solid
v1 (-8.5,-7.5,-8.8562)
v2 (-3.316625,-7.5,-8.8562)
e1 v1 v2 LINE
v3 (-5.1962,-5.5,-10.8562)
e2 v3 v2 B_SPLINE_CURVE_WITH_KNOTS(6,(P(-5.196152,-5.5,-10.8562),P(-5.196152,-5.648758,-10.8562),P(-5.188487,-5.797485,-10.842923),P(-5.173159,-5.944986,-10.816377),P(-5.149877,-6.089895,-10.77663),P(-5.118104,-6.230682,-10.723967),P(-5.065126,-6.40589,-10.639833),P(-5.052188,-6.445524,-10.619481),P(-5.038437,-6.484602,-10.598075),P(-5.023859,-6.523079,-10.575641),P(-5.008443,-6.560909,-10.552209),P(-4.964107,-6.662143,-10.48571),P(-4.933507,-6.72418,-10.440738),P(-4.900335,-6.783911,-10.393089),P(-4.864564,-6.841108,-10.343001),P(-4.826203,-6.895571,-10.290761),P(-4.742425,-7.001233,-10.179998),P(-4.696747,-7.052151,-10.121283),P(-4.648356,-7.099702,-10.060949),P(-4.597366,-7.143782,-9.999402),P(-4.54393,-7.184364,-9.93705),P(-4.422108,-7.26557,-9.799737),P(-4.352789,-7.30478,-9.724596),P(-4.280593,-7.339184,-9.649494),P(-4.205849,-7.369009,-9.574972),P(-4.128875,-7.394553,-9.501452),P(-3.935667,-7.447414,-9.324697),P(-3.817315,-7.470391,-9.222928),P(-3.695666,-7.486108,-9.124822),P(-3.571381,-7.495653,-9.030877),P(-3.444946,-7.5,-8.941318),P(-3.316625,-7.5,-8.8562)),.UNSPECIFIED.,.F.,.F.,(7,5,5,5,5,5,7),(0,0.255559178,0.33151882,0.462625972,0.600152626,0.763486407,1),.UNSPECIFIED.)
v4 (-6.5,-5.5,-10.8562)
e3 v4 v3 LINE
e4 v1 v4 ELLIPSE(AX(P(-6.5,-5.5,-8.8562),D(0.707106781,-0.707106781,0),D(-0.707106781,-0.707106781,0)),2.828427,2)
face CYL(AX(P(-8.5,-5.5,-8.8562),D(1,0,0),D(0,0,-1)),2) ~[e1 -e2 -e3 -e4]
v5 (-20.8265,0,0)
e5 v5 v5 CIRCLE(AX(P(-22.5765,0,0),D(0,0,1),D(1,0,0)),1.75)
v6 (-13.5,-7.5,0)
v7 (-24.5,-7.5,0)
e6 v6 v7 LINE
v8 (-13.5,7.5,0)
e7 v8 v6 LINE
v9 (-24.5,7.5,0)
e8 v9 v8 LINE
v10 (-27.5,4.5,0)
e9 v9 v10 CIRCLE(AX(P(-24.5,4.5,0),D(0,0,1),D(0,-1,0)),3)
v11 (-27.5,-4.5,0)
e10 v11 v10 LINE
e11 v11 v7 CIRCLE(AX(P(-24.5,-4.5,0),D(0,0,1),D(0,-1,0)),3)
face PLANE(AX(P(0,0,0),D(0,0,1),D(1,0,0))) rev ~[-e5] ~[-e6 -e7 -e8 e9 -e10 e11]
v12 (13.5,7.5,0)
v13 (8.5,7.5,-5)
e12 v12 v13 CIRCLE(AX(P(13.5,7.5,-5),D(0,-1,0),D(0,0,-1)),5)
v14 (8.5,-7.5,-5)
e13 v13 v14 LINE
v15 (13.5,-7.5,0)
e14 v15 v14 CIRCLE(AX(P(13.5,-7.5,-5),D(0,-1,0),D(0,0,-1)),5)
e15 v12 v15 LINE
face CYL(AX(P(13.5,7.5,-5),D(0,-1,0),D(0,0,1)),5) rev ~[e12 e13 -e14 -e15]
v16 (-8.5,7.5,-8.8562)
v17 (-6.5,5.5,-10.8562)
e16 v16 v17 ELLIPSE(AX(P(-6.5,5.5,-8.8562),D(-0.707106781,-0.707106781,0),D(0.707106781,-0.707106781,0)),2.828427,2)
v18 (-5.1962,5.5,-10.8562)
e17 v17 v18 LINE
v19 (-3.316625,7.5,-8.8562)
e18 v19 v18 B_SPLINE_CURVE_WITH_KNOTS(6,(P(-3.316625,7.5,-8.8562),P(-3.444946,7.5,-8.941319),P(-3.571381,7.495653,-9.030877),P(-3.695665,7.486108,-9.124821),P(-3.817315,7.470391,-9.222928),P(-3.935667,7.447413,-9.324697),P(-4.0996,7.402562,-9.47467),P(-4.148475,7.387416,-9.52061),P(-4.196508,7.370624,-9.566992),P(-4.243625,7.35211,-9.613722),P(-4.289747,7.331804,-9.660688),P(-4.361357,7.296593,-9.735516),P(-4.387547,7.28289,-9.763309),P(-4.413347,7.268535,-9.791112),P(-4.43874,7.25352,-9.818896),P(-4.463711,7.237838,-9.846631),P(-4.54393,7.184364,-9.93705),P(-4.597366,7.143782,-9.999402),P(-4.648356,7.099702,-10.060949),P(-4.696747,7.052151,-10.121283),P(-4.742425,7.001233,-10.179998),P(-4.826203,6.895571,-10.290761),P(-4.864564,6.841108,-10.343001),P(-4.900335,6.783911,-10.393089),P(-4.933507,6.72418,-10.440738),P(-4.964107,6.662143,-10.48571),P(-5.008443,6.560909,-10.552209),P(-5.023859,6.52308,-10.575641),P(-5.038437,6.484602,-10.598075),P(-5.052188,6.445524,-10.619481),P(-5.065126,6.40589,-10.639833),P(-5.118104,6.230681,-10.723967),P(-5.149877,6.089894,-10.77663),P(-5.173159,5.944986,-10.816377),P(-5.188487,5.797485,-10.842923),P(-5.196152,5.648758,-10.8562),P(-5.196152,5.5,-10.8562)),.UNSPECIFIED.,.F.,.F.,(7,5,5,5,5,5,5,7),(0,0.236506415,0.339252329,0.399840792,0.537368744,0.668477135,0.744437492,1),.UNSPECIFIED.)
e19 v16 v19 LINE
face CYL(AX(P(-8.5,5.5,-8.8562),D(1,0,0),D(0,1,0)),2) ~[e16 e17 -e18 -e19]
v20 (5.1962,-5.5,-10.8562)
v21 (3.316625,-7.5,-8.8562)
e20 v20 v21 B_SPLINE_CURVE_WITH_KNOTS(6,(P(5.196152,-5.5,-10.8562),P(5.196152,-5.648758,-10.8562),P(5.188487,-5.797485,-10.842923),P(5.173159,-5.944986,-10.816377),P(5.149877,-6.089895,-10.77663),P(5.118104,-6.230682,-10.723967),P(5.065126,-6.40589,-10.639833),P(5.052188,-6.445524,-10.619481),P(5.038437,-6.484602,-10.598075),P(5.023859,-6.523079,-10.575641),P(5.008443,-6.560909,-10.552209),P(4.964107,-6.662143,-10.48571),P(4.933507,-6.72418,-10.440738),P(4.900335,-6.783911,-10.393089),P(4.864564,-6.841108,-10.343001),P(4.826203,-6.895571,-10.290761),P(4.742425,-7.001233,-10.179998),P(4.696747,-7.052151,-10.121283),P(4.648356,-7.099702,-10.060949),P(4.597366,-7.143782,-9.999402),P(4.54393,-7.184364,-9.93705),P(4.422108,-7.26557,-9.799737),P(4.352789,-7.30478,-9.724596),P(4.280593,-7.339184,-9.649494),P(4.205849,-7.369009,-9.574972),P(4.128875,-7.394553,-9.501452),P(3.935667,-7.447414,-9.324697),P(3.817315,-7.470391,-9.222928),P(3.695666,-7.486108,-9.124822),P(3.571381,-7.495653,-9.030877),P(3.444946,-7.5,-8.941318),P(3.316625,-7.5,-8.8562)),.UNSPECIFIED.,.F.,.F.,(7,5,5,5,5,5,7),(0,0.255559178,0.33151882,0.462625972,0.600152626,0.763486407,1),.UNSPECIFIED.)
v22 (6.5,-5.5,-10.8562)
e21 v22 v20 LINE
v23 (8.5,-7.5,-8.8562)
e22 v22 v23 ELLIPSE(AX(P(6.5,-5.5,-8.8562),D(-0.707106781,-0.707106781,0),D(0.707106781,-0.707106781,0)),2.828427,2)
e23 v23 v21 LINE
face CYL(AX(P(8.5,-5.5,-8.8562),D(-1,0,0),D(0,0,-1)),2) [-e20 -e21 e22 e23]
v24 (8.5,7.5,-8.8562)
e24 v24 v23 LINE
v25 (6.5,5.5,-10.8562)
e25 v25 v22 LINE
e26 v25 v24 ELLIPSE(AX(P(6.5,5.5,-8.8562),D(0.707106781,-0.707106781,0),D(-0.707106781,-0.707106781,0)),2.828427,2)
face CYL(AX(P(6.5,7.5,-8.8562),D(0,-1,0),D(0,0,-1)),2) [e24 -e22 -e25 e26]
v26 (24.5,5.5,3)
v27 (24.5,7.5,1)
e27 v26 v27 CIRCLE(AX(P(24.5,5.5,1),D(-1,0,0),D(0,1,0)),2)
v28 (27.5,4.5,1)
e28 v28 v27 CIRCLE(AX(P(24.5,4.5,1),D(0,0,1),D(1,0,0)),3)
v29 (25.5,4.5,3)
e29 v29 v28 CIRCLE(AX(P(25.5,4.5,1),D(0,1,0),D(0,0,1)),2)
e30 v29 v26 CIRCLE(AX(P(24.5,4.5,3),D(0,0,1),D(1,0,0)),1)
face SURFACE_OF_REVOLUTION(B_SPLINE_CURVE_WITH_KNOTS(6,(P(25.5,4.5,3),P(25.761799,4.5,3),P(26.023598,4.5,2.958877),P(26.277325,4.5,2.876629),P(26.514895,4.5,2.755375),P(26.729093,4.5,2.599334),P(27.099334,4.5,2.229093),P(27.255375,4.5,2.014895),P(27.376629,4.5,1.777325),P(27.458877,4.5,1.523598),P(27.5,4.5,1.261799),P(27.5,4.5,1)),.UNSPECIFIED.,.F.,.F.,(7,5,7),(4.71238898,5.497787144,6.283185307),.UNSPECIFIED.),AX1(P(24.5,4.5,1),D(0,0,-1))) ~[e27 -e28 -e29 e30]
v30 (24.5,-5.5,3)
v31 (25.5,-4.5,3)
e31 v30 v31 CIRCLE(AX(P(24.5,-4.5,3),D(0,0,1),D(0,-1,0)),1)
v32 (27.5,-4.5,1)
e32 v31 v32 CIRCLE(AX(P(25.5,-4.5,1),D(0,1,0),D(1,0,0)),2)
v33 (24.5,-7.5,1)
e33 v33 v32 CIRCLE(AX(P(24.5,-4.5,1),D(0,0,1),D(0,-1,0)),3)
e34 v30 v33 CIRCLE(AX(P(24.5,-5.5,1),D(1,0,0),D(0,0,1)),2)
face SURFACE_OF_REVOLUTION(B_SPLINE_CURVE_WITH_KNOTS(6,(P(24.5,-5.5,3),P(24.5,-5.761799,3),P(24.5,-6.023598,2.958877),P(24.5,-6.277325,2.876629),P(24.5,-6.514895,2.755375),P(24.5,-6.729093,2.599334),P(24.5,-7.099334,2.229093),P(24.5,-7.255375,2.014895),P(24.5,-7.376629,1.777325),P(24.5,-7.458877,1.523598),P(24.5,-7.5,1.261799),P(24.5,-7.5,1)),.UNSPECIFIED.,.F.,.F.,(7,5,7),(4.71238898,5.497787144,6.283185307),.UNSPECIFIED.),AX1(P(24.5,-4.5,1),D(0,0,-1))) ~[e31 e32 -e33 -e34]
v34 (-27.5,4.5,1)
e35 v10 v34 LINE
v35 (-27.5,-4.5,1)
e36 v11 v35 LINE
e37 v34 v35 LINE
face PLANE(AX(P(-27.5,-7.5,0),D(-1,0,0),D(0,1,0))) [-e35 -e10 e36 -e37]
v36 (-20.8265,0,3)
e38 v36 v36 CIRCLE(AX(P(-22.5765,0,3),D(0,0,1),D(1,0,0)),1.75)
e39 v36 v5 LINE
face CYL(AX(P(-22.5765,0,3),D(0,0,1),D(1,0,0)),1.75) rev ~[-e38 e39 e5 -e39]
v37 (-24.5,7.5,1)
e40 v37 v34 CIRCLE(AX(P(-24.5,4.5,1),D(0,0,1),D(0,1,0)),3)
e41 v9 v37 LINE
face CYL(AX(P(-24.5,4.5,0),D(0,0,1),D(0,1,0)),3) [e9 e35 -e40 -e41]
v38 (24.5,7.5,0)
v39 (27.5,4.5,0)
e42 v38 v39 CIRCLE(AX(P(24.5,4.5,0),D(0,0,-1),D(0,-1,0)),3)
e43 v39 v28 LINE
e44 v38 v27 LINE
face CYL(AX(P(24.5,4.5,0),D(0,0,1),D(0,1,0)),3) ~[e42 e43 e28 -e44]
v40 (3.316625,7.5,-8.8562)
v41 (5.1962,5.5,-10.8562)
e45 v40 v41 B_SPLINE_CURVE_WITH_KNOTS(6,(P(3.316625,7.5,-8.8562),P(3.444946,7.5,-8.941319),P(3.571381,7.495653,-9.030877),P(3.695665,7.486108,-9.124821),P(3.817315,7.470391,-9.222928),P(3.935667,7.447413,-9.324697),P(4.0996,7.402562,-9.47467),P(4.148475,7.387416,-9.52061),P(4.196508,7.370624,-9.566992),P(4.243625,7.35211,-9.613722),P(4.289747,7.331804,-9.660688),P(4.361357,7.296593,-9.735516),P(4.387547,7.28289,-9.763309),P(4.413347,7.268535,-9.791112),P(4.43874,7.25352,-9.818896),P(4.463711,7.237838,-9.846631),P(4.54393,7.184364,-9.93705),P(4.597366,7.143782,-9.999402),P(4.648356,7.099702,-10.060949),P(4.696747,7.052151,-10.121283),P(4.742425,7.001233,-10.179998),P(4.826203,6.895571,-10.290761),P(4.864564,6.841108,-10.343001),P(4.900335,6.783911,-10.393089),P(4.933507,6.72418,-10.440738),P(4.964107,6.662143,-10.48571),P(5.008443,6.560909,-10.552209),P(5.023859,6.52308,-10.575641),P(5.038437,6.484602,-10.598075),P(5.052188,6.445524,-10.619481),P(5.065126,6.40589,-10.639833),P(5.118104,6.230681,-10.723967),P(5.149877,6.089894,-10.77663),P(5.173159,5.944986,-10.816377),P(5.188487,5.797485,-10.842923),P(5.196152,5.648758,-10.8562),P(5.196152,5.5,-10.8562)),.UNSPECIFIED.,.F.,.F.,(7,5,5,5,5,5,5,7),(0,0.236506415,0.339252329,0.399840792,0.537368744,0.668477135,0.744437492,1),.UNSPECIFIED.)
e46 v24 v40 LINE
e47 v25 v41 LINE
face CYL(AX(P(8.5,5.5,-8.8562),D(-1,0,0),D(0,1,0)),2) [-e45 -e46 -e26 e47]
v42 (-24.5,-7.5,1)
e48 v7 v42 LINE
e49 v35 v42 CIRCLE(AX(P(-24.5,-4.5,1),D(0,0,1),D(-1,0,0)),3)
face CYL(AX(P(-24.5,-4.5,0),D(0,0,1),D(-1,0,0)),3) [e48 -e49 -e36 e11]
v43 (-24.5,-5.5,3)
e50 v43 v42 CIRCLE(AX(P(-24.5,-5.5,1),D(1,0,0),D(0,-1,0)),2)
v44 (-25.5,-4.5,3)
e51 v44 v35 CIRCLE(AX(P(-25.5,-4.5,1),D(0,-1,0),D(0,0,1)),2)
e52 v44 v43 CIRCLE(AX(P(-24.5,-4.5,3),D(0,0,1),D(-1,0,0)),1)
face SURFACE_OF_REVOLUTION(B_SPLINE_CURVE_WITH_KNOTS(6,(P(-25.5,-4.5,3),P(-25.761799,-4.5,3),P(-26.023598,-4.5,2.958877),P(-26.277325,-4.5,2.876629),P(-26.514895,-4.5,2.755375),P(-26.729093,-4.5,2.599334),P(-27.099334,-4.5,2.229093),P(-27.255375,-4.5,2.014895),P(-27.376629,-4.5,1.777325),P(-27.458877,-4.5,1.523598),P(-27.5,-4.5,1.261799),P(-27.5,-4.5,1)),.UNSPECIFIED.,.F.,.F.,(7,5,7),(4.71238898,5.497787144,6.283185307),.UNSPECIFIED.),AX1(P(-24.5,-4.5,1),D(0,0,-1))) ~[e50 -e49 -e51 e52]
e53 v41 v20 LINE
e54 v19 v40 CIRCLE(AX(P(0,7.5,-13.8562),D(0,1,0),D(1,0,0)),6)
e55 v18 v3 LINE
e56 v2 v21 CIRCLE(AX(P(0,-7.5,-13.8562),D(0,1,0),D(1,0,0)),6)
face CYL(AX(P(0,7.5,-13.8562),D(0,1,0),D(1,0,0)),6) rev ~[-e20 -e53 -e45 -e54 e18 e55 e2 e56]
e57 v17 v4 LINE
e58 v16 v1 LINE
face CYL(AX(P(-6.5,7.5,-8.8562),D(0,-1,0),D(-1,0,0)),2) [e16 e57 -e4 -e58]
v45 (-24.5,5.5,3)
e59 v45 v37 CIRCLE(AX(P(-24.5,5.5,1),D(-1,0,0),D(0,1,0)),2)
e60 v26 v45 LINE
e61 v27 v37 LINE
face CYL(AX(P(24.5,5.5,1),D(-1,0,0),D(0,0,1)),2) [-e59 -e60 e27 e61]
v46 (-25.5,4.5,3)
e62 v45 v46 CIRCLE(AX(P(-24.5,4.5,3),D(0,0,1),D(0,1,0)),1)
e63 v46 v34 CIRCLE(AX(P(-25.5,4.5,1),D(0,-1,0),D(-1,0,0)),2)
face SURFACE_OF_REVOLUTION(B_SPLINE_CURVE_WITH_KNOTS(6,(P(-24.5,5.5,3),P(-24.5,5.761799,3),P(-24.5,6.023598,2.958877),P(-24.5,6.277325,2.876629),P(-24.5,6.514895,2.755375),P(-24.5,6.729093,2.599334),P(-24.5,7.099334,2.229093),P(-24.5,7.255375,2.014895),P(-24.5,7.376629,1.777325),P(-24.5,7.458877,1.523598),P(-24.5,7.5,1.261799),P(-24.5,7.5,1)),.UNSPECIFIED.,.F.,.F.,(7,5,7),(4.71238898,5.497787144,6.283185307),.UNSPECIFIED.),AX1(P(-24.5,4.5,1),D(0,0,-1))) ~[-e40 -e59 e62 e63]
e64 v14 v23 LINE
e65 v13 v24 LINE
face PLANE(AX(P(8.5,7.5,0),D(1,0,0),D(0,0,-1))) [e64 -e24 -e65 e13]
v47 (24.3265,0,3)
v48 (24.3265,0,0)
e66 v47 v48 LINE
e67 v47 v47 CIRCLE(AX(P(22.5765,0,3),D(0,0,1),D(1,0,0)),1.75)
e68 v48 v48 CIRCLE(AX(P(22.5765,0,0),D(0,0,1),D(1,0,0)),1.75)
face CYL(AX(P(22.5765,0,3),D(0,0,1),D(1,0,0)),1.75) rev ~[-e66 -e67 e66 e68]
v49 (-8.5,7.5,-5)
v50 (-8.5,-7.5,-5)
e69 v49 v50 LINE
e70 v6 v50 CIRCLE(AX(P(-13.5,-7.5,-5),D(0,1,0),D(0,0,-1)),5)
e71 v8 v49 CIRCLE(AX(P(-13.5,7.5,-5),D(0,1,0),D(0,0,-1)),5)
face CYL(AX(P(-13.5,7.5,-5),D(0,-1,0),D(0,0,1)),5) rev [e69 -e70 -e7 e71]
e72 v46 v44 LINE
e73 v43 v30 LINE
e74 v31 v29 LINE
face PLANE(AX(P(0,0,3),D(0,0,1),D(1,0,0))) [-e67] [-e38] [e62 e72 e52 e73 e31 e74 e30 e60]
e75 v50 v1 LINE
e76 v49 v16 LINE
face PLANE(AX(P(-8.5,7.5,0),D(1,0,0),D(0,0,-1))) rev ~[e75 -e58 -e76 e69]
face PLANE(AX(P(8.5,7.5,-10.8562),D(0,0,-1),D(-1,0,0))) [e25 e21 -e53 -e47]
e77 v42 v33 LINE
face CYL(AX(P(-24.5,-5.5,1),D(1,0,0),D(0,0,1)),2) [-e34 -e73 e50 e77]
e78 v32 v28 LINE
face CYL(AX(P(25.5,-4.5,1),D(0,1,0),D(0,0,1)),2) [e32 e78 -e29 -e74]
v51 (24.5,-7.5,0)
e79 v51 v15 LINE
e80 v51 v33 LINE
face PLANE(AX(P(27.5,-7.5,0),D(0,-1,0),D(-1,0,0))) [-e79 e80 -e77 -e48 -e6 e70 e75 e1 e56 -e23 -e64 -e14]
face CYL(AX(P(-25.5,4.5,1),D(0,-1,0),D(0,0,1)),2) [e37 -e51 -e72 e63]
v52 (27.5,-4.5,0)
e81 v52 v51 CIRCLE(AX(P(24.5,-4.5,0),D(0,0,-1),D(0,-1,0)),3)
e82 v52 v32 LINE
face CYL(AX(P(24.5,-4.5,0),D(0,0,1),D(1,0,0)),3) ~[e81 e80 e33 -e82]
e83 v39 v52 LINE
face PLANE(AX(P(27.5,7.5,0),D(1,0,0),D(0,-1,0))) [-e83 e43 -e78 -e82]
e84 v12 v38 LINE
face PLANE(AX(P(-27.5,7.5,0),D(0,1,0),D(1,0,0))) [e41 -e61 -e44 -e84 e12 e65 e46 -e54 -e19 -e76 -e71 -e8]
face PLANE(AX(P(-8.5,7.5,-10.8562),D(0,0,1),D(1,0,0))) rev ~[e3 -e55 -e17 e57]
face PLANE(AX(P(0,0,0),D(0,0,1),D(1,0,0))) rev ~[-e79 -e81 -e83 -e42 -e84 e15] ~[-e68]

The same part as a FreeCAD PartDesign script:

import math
import FreeCAD as App
import Part
import Sketcher

V = App.Vector


def edges_at(feature, points):
    """Names of the edges that pass closest to the given points."""
    edges = feature.Shape.Edges
    near = lambda p: min(range(len(edges)), key=lambda i: edges[i].distToShape(Part.Vertex(*p))[0])
    return sorted({f"Edge{near(p) + 1}" for p in points})


def add_polygon(sketch, points):
    """Adds a closed chain of lines whose ends are joined by coincident constraints."""
    first, n = sketch.GeometryCount, len(points)
    for a, b in zip(points, points[1:] + points[:1]):
        sketch.addGeometry(Part.LineSegment(App.Vector(*a, 0), App.Vector(*b, 0)), False)
    for i in range(n):
        sketch.addConstraint(Sketcher.Constraint("Coincident", first + i, 2, first + (i + 1) % n, 1))

doc = App.newDocument("Part")
body = doc.addObject("PartDesign::Body", "Body")

# Sketch on XY plane
sketch1 = body.newObject("Sketcher::SketchObject", "Sketch")
sketch1.AttachmentSupport = (doc.getObject("XY_Plane"), [""])
sketch1.MapMode = "FlatFace"
add_polygon(sketch1, [(28, 8), (-28, 8), (-28, -8), (28, -8)])  # lines 0-3
sketch1.addConstraint([
    Sketcher.Constraint("Horizontal", 0),
    Sketcher.Constraint("Vertical", 1),
    Sketcher.Constraint("Horizontal", 2),
    Sketcher.Constraint("Vertical", 3),
    Sketcher.Constraint("Symmetric", 0, 2, 2, 2, -1, 1),
    Sketcher.Constraint("DistanceX", 0, 2, 0, 1, 55.0),
    Sketcher.Constraint("DistanceY", 1, 2, 1, 1, 15.0),
])
pad1 = body.newObject("PartDesign::Pad", "Pad")
pad1.Profile = sketch1
pad1.Length = 3

# Sketch on XY plane
sketch2 = body.newObject("Sketcher::SketchObject", "Sketch001")
sketch2.AttachmentSupport = (doc.getObject("XY_Plane"), [""])
sketch2.MapMode = "FlatFace"
sketch2.AttachmentOffset = App.Placement(V(0, 0, 3), App.Rotation())
sketch2.addGeometry([
    Part.Circle(V(22.6, 0, 0), V(0, 0, 1), 1.8),
    Part.Circle(V(-22.6, 0, 0), V(0, 0, 1), 1.8),
], False)
sketch2.addConstraint([
    Sketcher.Constraint("Equal", 0, 1),
    Sketcher.Constraint("Symmetric", 0, 3, 1, 3, -1, 1),
    Sketcher.Constraint("PointOnObject", 0, 3, -1),
    Sketcher.Constraint("Diameter", 0, 3.5),
    Sketcher.Constraint("DistanceX", 1, 3, 0, 3, 45.153),
])
pocket1 = body.newObject("PartDesign::Pocket", "Pocket")
pocket1.Profile = sketch2
pocket1.Type = "ThroughAll"

# Sketch on XZ plane
sketch3 = body.newObject("Sketcher::SketchObject", "Sketch002")
sketch3.AttachmentSupport = (doc.getObject("XZ_Plane"), [""])
sketch3.MapMode = "FlatFace"
sketch3.AttachmentOffset = App.Placement(V(0, 0, -7.5), App.Rotation())
sketch3.addGeometry([
    Part.LineSegment(V(-8.5, 0, 0), V(8.5, 0, 0)),  # 0
    Part.LineSegment(V(8.5, 0, 0), V(8.5, -10.9, 0)),  # 1
    Part.LineSegment(V(8.5, -10.9, 0), V(5.2, -10.9, 0)),  # 2
    Part.ArcOfCircle(Part.Circle(V(0, -13.9, 0), V(0, 0, 1), 6), math.radians(30), math.radians(150)),  # 3
    Part.LineSegment(V(-5.2, -10.9, 0), V(-8.5, -10.9, 0)),  # 4
    Part.LineSegment(V(-8.5, -10.9, 0), V(-8.5, 0, 0)),  # 5
], False)
sketch3.addConstraint([
    Sketcher.Constraint("Coincident", 0, 2, 1, 1),
    Sketcher.Constraint("Coincident", 1, 2, 2, 1),
    Sketcher.Constraint("Coincident", 2, 2, 3, 1),
    Sketcher.Constraint("Coincident", 3, 2, 4, 1),
    Sketcher.Constraint("Coincident", 4, 2, 5, 1),
    Sketcher.Constraint("Coincident", 5, 2, 0, 1),
    Sketcher.Constraint("Horizontal", 0),
    Sketcher.Constraint("Vertical", 1),
    Sketcher.Constraint("Horizontal", 2),
    Sketcher.Constraint("Horizontal", 4),
    Sketcher.Constraint("Vertical", 5),
    Sketcher.Constraint("Symmetric", 0, 2, 5, 2, -1, 1),
    Sketcher.Constraint("Symmetric", 2, 2, 3, 2, -2),
    Sketcher.Constraint("Radius", 3, 6.0),
    Sketcher.Constraint("DistanceX", 0, 1, 0, 2, 17.0),
    Sketcher.Constraint("DistanceY", 3, 3, 1, 2, 3.0),
    Sketcher.Constraint("DistanceY", 1, 2, 1, 1, 10.8562),
])
pad2 = body.newObject("PartDesign::Pad", "Pad001")
pad2.Profile = sketch3
pad2.Length = 15
doc.recompute()

fillet = body.newObject("PartDesign::Fillet", "Fillet")
fillet.Base = (pad2, edges_at(pad2, [
    (-27.5, 7.5, 1.5),
    (-27.5, -7.5, 1.5),
    (27.5, 7.5, 1.5),
    (27.5, -7.5, 1.5),
]))
fillet.Radius = 3
doc.recompute()

fillet2 = body.newObject("PartDesign::Fillet", "Fillet001")
fillet2.Base = (fillet, edges_at(fillet, [
    (-26.621, 6.621, 3),
    (-27.5, 0, 3),
    (-26.621, -6.621, 3),
    (0, -7.5, 3),
    (26.621, -6.621, 3),
    (27.5, 0, 3),
    (26.621, 6.621, 3),
    (0, 7.5, 3),
]))
fillet2.Radius = 2
doc.recompute()

fillet3 = body.newObject("PartDesign::Fillet", "Fillet002")
fillet3.Base = (fillet2, edges_at(fillet2, [(-8.5, 0, 0), (8.5, 0, 0)]))
fillet3.Radius = 5
doc.recompute()

fillet4 = body.newObject("PartDesign::Fillet", "Fillet003")
fillet4.Base = (fillet3, edges_at(fillet3, [
    (-6.848, 7.5, -10.856),
    (-8.5, 0, -10.856),
    (8.5, 0, -10.856),
    (-6.848, -7.5, -10.856),
    (6.848, -7.5, -10.856),
    (6.848, 7.5, -10.856),
]))
fillet4.Radius = 2

doc.recompute()
